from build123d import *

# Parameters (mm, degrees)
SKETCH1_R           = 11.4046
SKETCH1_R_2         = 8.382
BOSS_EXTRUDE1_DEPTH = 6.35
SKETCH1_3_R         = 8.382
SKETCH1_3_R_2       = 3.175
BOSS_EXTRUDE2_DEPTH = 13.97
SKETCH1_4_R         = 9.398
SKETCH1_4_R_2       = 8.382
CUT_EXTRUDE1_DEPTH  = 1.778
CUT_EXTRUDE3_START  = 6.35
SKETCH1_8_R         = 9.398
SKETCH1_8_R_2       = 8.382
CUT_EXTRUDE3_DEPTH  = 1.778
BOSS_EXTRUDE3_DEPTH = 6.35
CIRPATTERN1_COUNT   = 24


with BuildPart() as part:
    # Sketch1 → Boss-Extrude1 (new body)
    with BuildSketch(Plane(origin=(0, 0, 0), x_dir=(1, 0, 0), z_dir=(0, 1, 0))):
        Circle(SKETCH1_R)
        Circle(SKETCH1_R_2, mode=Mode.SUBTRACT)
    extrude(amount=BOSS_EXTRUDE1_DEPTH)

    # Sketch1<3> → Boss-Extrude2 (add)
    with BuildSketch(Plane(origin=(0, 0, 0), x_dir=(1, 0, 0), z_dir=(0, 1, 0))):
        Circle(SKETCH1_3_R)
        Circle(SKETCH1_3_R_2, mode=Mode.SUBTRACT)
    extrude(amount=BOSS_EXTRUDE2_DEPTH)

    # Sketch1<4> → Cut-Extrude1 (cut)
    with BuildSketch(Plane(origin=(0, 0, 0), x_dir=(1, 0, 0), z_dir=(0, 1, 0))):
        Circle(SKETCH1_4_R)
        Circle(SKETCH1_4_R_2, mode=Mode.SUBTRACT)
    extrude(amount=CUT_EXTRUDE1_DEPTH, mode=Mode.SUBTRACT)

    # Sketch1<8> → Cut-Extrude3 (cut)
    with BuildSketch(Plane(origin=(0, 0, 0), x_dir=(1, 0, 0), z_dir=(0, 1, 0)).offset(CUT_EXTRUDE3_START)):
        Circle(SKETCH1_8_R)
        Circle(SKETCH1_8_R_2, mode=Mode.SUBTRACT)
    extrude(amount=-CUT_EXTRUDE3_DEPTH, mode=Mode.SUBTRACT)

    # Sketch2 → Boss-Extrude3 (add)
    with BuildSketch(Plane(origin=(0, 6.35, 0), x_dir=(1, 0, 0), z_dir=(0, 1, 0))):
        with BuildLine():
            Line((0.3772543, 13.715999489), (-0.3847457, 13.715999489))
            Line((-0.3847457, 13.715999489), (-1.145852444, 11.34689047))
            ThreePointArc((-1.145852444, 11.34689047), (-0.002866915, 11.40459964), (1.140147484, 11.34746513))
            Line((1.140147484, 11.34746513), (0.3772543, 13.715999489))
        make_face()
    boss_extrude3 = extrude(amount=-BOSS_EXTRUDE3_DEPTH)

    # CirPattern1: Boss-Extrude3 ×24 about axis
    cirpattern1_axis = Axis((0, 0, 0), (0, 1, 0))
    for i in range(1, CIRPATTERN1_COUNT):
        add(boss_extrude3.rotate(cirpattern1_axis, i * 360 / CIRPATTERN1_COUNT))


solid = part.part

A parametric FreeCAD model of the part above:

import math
import FreeCAD as App
import Part
import Sketcher

V = App.Vector
Q = App.Units.Quantity

doc = App.newDocument("Part")
body = doc.addObject("PartDesign::Body", "Body")

# Sketch on XZ plane
sketch1 = body.newObject("Sketcher::SketchObject", "Sketch")
sketch1.AttachmentSupport = (doc.getObject("XZ_Plane"), [""])
sketch1.MapMode = "FlatFace"
sketch1.addGeometry(Part.Circle(V(0, 0, 0), V(0, 0, 1), 11), False)
sketch1.addGeometry(Part.Circle(V(0, 0, 0), V(0, 0, 1), 8), False)
sketch1.addConstraint(Sketcher.Constraint("Coincident", 0, 3, -1, 1))
sketch1.addConstraint(Sketcher.Constraint("Coincident", 1, 3, -1, 1))
sketch1.addConstraint(Sketcher.Constraint("Diameter", 1, Q("0.66 in")))
sketch1.addConstraint(Sketcher.Constraint("Diameter", 0, Q("0.898 in")))
pad1 = body.newObject("PartDesign::Pad", "Pad")
pad1.Profile = sketch1
pad1.Length = Q("0.25 in")
pad1.Reversed = True

# Sketch on XZ plane
sketch2 = body.newObject("Sketcher::SketchObject", "Sketch001")
sketch2.AttachmentSupport = (doc.getObject("XZ_Plane"), [""])
sketch2.MapMode = "FlatFace"
sketch2.addGeometry(Part.Circle(V(0, 0, 0), V(0, 0, 1), 8.4), False)
sketch2.addGeometry(Part.Circle(V(0, 0, 0), V(0, 0, 1), 3.2), False)
sketch2.addConstraint(Sketcher.Constraint("Coincident", 0, 3, -1, 1))
sketch2.addConstraint(Sketcher.Constraint("Coincident", 1, 3, -1, 1))
sketch2.addConstraint(Sketcher.Constraint("Diameter", 0, Q("0.66 in")))
sketch2.addConstraint(Sketcher.Constraint("Diameter", 1, Q("0.25 in")))
pad2 = body.newObject("PartDesign::Pad", "Pad001")
pad2.Profile = sketch2
pad2.Length = Q("0.55 in")
pad2.Reversed = True

# Sketch on XZ plane
sketch3 = body.newObject("Sketcher::SketchObject", "Sketch002")
sketch3.AttachmentSupport = (doc.getObject("XZ_Plane"), [""])
sketch3.MapMode = "FlatFace"
sketch3.addGeometry(Part.Circle(V(0, 0, 0), V(0, 0, 1), 9), False)
sketch3.addGeometry(Part.Circle(V(0, 0, 0), V(0, 0, 1), 8), False)
sketch3.addConstraint(Sketcher.Constraint("Coincident", 0, 3, -1, 1))
sketch3.addConstraint(Sketcher.Constraint("Coincident", 1, 3, -1, 1))
sketch3.addConstraint(Sketcher.Constraint("Diameter", 0, Q("0.74 in")))
sketch3.addConstraint(Sketcher.Constraint("Diameter", 1, Q("0.66 in")))
pocket1 = body.newObject("PartDesign::Pocket", "Pocket")
pocket1.Profile = sketch3
pocket1.Length = Q("0.07 in")

# Sketch on XZ plane
sketch4 = body.newObject("Sketcher::SketchObject", "Sketch003")
sketch4.AttachmentSupport = (doc.getObject("XZ_Plane"), [""])
sketch4.MapMode = "FlatFace"
sketch4.AttachmentOffset = App.Placement(V(0, 0, -0.25 * 25.4), App.Rotation())
sketch4.addGeometry(Part.Circle(V(0, 0, 0), V(0, 0, 1), 9), False)
sketch4.addGeometry(Part.Circle(V(0, 0, 0), V(0, 0, 1), 8), False)
sketch4.addConstraint(Sketcher.Constraint("Coincident", 0, 3, -1, 1))
sketch4.addConstraint(Sketcher.Constraint("Coincident", 1, 3, -1, 1))
sketch4.addConstraint(Sketcher.Constraint("Diameter", 0, Q("0.74 in")))
sketch4.addConstraint(Sketcher.Constraint("Diameter", 1, Q("0.66 in")))
pocket2 = body.newObject("PartDesign::Pocket", "Pocket001")
pocket2.Profile = sketch4
pocket2.Length = Q("0.07 in")
pocket2.Reversed = True

# Sketch on XZ plane
sketch5 = body.newObject("Sketcher::SketchObject", "Sketch004")
sketch5.AttachmentSupport = (doc.getObject("XZ_Plane"), [""])
sketch5.MapMode = "FlatFace"
sketch5.AttachmentOffset = App.Placement(V(0, 0, -0.25 * 25.4), App.Rotation())
sketch5.addGeometry(Part.LineSegment(V(0.4, -13.7, 0), V(-0.4, -13.7, 0)), False)
sketch5.addGeometry(Part.LineSegment(V(-0.4, -13.7, 0), V(-1.1, -11.3, 0)), False)
sketch5.addGeometry(Part.ArcOfCircle(Part.Circle(V(0, 0, 0), V(0, 0, 1), 11.4), math.radians(-95.77), math.radians(-84.26)), False)
sketch5.addGeometry(Part.LineSegment(V(1.1, -11.3, 0), V(0.4, -13.7, 0)), False)
sketch5.addConstraint(Sketcher.Constraint("Coincident", 0, 2, 1, 1))
sketch5.addConstraint(Sketcher.Constraint("Coincident", 1, 2, 2, 1))
sketch5.addConstraint(Sketcher.Constraint("Coincident", 2, 2, 3, 1))
sketch5.addConstraint(Sketcher.Constraint("Coincident", 3, 2, 0, 1))
sketch5.addConstraint(Sketcher.Constraint("Horizontal", 0))
sketch5.addConstraint(Sketcher.Constraint("Coincident", 2, 3, -1, 1))
sketch5.addConstraint(Sketcher.Constraint("Equal", 1, 3))
sketch5.addConstraint(Sketcher.Constraint("Radius", 2, Q("0.449 in")))
sketch5.addConstraint(Sketcher.Constraint("DistanceX", 0, 2, 0, 1, Q("0.03 in")))
sketch5.addConstraint(Sketcher.Constraint("DistanceY", 0, 2, -1, 1, Q("0.54 in")))
sketch5.addConstraint(Sketcher.Constraint("DistanceX", 1, 2, 2, 2, Q("0.09 in")))
sketch5.addConstraint(Sketcher.Constraint("DistanceY", 1, 2, -1, 1, Q("11.34689 mm")))
pad3 = body.newObject("PartDesign::Pad", "Pad002")
pad3.Profile = sketch5
pad3.Length = Q("0.25 in")
doc.recompute()

polarpattern = body.newObject("PartDesign::PolarPattern", "PolarPattern")
polarpattern.Originals = [pad3]
polarpattern.Axis = (doc.getObject("Y_Axis"), [""])
polarpattern.Angle = 360
polarpattern.Occurrences = 24
body.Tip = polarpattern

doc.recompute()
